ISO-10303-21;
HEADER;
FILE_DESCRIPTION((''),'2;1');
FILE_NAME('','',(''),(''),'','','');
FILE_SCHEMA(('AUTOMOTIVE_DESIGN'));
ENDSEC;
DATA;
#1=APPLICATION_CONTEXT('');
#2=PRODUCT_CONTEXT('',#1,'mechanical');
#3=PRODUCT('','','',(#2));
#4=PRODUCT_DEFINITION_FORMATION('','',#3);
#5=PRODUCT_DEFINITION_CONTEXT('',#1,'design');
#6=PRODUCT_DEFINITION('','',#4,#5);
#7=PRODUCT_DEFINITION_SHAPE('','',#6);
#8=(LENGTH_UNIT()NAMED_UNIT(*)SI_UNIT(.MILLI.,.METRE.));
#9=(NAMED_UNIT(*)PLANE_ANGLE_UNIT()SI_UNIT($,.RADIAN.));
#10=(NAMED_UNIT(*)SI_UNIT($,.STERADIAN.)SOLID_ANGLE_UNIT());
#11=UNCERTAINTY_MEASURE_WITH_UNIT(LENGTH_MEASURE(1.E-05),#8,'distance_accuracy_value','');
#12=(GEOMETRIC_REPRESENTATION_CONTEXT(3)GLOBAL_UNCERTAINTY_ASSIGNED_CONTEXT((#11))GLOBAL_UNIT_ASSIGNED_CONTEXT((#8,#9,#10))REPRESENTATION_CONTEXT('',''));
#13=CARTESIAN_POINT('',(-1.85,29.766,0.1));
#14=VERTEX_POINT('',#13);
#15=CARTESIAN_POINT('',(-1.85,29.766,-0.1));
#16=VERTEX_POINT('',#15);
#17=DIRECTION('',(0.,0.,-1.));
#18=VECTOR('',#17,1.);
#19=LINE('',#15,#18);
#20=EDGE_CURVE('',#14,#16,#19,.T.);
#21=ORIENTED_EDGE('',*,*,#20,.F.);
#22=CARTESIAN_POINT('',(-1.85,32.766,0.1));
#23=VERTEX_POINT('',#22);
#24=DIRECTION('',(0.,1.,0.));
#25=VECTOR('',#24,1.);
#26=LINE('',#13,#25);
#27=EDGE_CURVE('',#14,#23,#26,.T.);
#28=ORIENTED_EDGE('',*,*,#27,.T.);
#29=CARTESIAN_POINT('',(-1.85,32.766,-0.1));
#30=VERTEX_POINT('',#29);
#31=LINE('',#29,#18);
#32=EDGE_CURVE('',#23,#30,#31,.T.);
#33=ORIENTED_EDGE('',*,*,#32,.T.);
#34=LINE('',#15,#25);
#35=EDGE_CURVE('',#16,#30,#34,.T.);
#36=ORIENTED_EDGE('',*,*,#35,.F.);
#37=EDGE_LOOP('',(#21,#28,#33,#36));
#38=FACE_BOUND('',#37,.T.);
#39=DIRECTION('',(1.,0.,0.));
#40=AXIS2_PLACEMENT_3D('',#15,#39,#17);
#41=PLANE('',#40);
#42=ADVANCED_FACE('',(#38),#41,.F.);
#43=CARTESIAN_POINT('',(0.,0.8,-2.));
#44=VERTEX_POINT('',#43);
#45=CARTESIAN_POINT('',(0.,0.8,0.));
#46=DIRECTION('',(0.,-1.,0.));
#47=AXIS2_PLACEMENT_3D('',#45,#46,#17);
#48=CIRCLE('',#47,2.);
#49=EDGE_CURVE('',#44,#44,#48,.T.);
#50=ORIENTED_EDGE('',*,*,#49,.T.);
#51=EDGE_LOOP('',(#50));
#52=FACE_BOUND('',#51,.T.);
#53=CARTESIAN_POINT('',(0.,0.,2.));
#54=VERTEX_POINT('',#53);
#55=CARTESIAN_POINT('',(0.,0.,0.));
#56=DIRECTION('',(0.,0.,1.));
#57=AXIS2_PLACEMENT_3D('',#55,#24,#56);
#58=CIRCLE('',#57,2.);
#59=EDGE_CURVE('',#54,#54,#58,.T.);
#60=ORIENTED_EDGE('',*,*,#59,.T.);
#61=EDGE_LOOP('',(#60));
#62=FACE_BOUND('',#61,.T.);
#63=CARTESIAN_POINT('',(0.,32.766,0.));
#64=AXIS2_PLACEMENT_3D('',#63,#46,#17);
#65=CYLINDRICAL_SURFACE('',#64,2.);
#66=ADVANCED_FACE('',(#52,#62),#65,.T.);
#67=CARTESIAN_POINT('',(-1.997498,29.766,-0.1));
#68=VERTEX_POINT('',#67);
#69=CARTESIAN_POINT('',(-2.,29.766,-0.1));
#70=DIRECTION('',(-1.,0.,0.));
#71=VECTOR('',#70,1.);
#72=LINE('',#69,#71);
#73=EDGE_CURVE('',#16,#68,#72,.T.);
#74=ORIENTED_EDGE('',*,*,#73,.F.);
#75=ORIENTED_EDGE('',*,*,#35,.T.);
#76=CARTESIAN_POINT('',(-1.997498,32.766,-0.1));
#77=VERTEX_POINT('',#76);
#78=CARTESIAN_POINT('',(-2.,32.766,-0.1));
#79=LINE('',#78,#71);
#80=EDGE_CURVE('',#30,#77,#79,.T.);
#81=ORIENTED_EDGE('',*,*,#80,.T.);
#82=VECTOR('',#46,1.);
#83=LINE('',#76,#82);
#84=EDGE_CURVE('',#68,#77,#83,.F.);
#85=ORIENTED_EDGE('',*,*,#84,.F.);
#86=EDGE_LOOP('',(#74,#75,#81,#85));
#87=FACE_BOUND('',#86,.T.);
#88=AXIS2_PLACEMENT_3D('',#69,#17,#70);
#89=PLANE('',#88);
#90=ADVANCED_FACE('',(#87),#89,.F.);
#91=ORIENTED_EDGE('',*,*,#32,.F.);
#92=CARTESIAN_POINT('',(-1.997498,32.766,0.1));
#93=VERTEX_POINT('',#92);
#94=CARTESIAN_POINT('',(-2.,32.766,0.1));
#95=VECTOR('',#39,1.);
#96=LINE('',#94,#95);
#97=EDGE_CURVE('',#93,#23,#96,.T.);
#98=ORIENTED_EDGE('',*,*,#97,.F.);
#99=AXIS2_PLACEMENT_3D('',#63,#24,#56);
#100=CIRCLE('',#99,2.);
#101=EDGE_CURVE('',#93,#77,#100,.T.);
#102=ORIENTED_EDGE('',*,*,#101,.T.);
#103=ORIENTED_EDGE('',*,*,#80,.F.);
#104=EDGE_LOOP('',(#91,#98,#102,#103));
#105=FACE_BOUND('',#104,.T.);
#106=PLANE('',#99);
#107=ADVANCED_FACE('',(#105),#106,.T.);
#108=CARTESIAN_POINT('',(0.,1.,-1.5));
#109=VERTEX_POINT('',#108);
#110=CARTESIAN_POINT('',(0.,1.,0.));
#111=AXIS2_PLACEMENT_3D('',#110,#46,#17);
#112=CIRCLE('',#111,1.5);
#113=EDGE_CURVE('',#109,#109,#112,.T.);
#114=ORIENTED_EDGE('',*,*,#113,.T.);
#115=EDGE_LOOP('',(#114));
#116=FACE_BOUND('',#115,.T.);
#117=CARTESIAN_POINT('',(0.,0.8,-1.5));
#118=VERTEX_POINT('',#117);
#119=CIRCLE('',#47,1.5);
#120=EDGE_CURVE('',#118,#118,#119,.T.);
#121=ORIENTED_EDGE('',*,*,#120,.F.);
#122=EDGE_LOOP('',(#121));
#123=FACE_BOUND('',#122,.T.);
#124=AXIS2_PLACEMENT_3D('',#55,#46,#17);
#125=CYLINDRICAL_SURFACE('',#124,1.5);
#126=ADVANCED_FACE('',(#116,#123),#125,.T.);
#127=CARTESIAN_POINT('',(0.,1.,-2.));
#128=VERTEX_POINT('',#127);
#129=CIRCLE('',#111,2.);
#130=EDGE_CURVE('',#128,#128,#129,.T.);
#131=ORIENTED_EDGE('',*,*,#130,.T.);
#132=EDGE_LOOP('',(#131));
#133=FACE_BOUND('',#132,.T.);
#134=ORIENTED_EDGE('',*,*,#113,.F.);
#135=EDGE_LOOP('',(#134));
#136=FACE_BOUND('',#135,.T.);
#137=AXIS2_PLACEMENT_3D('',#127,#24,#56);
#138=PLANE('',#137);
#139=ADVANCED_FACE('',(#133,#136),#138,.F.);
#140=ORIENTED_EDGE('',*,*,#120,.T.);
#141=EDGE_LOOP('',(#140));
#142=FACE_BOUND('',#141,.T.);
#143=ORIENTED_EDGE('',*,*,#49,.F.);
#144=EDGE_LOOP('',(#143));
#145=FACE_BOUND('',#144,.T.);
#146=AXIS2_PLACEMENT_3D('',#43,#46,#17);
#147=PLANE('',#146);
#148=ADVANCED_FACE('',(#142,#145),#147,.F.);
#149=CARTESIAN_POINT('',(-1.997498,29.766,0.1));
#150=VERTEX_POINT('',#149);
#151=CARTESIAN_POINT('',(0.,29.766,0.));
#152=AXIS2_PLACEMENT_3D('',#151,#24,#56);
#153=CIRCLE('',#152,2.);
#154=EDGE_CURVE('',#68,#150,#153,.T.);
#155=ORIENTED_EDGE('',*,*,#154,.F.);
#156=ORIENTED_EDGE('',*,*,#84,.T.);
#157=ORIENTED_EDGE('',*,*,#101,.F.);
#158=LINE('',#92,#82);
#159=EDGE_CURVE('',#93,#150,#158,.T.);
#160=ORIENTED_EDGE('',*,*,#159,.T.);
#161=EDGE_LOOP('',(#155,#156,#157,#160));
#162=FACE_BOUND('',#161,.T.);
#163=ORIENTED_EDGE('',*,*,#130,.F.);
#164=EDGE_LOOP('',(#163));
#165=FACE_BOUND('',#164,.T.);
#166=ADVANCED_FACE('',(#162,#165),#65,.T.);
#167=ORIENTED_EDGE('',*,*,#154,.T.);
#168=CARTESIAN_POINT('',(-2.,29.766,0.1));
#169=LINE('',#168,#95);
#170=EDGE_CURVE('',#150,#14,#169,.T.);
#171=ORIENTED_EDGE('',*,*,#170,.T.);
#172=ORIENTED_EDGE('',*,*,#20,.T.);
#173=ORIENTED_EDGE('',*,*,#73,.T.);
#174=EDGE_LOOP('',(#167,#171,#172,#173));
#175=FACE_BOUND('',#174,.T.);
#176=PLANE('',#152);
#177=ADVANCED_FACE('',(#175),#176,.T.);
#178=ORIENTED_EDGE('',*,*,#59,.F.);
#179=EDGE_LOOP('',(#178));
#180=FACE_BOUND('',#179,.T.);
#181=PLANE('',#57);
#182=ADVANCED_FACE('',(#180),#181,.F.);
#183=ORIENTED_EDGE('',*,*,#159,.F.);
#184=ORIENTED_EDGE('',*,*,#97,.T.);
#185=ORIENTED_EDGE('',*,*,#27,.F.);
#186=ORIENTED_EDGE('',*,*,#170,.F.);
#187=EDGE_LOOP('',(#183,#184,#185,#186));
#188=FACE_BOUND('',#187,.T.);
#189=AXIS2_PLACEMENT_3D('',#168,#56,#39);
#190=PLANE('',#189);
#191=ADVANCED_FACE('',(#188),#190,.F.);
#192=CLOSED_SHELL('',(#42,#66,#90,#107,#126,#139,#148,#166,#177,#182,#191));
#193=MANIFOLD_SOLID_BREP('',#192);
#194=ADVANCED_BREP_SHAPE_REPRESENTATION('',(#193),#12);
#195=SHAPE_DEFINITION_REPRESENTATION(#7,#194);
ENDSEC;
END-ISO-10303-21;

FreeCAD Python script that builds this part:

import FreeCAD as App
import Part
import Sketcher
Q = App.Units.Quantity


def add_polygon(sketch, points):
    """Adds a closed chain of lines whose ends are joined by coincident constraints."""
    first, n = sketch.GeometryCount, len(points)
    for a, b in zip(points, points[1:] + points[:1]):
        sketch.addGeometry(Part.LineSegment(App.Vector(*a, 0), App.Vector(*b, 0)), False)
    for i in range(n):
        sketch.addConstraint(Sketcher.Constraint("Coincident", first + i, 2, first + (i + 1) % n, 1))

doc = App.newDocument("Part")
body = doc.addObject("PartDesign::Body", "Body")

# Sketch on XZ plane
sketch1 = body.newObject("Sketcher::SketchObject", "Sketch")
sketch1.AttachmentSupport = (doc.getObject("XZ_Plane"), [""])
sketch1.MapMode = "FlatFace"
sketch1.addGeometry(Part.Circle(App.Vector(0, 0, 0), App.Vector(0, 0, 1), 2), False)
sketch1.addConstraint([
    Sketcher.Constraint("Coincident", 0, 3, -1, 1),
    Sketcher.Constraint("Diameter", 0, Q("4 mm")),
])
pad1 = body.newObject("PartDesign::Pad", "Pad")
pad1.Profile = sketch1
pad1.Length = 32.766
pad1.Reversed = True

# Sketch on YZ plane
sketch2 = body.newObject("Sketcher::SketchObject", "Sketch001")
sketch2.AttachmentSupport = (doc.getObject("YZ_Plane"), [""])
sketch2.MapMode = "FlatFace"
add_polygon(sketch2, [(1, -1.5), (0.8, -1.5), (0.8, -2), (1, -2)])  # lines 0-3
sketch2.addConstraint([
    Sketcher.Constraint("Horizontal", 0),
    Sketcher.Constraint("Vertical", 1),
    Sketcher.Constraint("Horizontal", 2),
    Sketcher.Constraint("Vertical", 3),
    Sketcher.Constraint("DistanceX", 0, 2, 0, 1, Q("0.2 mm")),
    Sketcher.Constraint("DistanceY", 1, 2, 1, 1, Q("0.5 mm")),
    Sketcher.Constraint("DistanceY", 1, 2, -1, 1, Q("2 mm")),
    Sketcher.Constraint("DistanceX", -1, 1, 2, 2, Q("1 mm")),
])
groove = body.newObject("PartDesign::Groove", "Groove")
groove.Profile = sketch2
groove.ReferenceAxis = (sketch2, ["H_Axis"])
groove.Angle = 360

# Sketch on XZ plane
sketch3 = body.newObject("Sketcher::SketchObject", "Sketch002")
sketch3.AttachmentSupport = (doc.getObject("XZ_Plane"), [""])
sketch3.MapMode = "FlatFace"
sketch3.AttachmentOffset = App.Placement(App.Vector(0, 0, -32.766), App.Rotation())
add_polygon(sketch3, [(-2, -0.1), (-2, 0.1), (-1.85, 0.1), (-1.85, -0.1)])  # lines 0-3
sketch3.addConstraint([
    Sketcher.Constraint("Vertical", 0),
    Sketcher.Constraint("Horizontal", 1),
    Sketcher.Constraint("Vertical", 2),
    Sketcher.Constraint("Horizontal", 3),
    Sketcher.Constraint("DistanceY", 0, 1, 0, 2, Q("0.2 mm")),
    Sketcher.Constraint("DistanceX", 0, 2, -1, 1, Q("2 mm")),
    Sketcher.Constraint("DistanceX", 1, 1, 1, 2, Q("0.15 mm")),
    Sketcher.Constraint("DistanceY", -1, 1, 0, 2, Q("0.1 mm")),
])
pocket1 = body.newObject("PartDesign::Pocket", "Pocket")
pocket1.Profile = sketch3
pocket1.Length = 3
pocket1.Reversed = True

doc.recompute()
